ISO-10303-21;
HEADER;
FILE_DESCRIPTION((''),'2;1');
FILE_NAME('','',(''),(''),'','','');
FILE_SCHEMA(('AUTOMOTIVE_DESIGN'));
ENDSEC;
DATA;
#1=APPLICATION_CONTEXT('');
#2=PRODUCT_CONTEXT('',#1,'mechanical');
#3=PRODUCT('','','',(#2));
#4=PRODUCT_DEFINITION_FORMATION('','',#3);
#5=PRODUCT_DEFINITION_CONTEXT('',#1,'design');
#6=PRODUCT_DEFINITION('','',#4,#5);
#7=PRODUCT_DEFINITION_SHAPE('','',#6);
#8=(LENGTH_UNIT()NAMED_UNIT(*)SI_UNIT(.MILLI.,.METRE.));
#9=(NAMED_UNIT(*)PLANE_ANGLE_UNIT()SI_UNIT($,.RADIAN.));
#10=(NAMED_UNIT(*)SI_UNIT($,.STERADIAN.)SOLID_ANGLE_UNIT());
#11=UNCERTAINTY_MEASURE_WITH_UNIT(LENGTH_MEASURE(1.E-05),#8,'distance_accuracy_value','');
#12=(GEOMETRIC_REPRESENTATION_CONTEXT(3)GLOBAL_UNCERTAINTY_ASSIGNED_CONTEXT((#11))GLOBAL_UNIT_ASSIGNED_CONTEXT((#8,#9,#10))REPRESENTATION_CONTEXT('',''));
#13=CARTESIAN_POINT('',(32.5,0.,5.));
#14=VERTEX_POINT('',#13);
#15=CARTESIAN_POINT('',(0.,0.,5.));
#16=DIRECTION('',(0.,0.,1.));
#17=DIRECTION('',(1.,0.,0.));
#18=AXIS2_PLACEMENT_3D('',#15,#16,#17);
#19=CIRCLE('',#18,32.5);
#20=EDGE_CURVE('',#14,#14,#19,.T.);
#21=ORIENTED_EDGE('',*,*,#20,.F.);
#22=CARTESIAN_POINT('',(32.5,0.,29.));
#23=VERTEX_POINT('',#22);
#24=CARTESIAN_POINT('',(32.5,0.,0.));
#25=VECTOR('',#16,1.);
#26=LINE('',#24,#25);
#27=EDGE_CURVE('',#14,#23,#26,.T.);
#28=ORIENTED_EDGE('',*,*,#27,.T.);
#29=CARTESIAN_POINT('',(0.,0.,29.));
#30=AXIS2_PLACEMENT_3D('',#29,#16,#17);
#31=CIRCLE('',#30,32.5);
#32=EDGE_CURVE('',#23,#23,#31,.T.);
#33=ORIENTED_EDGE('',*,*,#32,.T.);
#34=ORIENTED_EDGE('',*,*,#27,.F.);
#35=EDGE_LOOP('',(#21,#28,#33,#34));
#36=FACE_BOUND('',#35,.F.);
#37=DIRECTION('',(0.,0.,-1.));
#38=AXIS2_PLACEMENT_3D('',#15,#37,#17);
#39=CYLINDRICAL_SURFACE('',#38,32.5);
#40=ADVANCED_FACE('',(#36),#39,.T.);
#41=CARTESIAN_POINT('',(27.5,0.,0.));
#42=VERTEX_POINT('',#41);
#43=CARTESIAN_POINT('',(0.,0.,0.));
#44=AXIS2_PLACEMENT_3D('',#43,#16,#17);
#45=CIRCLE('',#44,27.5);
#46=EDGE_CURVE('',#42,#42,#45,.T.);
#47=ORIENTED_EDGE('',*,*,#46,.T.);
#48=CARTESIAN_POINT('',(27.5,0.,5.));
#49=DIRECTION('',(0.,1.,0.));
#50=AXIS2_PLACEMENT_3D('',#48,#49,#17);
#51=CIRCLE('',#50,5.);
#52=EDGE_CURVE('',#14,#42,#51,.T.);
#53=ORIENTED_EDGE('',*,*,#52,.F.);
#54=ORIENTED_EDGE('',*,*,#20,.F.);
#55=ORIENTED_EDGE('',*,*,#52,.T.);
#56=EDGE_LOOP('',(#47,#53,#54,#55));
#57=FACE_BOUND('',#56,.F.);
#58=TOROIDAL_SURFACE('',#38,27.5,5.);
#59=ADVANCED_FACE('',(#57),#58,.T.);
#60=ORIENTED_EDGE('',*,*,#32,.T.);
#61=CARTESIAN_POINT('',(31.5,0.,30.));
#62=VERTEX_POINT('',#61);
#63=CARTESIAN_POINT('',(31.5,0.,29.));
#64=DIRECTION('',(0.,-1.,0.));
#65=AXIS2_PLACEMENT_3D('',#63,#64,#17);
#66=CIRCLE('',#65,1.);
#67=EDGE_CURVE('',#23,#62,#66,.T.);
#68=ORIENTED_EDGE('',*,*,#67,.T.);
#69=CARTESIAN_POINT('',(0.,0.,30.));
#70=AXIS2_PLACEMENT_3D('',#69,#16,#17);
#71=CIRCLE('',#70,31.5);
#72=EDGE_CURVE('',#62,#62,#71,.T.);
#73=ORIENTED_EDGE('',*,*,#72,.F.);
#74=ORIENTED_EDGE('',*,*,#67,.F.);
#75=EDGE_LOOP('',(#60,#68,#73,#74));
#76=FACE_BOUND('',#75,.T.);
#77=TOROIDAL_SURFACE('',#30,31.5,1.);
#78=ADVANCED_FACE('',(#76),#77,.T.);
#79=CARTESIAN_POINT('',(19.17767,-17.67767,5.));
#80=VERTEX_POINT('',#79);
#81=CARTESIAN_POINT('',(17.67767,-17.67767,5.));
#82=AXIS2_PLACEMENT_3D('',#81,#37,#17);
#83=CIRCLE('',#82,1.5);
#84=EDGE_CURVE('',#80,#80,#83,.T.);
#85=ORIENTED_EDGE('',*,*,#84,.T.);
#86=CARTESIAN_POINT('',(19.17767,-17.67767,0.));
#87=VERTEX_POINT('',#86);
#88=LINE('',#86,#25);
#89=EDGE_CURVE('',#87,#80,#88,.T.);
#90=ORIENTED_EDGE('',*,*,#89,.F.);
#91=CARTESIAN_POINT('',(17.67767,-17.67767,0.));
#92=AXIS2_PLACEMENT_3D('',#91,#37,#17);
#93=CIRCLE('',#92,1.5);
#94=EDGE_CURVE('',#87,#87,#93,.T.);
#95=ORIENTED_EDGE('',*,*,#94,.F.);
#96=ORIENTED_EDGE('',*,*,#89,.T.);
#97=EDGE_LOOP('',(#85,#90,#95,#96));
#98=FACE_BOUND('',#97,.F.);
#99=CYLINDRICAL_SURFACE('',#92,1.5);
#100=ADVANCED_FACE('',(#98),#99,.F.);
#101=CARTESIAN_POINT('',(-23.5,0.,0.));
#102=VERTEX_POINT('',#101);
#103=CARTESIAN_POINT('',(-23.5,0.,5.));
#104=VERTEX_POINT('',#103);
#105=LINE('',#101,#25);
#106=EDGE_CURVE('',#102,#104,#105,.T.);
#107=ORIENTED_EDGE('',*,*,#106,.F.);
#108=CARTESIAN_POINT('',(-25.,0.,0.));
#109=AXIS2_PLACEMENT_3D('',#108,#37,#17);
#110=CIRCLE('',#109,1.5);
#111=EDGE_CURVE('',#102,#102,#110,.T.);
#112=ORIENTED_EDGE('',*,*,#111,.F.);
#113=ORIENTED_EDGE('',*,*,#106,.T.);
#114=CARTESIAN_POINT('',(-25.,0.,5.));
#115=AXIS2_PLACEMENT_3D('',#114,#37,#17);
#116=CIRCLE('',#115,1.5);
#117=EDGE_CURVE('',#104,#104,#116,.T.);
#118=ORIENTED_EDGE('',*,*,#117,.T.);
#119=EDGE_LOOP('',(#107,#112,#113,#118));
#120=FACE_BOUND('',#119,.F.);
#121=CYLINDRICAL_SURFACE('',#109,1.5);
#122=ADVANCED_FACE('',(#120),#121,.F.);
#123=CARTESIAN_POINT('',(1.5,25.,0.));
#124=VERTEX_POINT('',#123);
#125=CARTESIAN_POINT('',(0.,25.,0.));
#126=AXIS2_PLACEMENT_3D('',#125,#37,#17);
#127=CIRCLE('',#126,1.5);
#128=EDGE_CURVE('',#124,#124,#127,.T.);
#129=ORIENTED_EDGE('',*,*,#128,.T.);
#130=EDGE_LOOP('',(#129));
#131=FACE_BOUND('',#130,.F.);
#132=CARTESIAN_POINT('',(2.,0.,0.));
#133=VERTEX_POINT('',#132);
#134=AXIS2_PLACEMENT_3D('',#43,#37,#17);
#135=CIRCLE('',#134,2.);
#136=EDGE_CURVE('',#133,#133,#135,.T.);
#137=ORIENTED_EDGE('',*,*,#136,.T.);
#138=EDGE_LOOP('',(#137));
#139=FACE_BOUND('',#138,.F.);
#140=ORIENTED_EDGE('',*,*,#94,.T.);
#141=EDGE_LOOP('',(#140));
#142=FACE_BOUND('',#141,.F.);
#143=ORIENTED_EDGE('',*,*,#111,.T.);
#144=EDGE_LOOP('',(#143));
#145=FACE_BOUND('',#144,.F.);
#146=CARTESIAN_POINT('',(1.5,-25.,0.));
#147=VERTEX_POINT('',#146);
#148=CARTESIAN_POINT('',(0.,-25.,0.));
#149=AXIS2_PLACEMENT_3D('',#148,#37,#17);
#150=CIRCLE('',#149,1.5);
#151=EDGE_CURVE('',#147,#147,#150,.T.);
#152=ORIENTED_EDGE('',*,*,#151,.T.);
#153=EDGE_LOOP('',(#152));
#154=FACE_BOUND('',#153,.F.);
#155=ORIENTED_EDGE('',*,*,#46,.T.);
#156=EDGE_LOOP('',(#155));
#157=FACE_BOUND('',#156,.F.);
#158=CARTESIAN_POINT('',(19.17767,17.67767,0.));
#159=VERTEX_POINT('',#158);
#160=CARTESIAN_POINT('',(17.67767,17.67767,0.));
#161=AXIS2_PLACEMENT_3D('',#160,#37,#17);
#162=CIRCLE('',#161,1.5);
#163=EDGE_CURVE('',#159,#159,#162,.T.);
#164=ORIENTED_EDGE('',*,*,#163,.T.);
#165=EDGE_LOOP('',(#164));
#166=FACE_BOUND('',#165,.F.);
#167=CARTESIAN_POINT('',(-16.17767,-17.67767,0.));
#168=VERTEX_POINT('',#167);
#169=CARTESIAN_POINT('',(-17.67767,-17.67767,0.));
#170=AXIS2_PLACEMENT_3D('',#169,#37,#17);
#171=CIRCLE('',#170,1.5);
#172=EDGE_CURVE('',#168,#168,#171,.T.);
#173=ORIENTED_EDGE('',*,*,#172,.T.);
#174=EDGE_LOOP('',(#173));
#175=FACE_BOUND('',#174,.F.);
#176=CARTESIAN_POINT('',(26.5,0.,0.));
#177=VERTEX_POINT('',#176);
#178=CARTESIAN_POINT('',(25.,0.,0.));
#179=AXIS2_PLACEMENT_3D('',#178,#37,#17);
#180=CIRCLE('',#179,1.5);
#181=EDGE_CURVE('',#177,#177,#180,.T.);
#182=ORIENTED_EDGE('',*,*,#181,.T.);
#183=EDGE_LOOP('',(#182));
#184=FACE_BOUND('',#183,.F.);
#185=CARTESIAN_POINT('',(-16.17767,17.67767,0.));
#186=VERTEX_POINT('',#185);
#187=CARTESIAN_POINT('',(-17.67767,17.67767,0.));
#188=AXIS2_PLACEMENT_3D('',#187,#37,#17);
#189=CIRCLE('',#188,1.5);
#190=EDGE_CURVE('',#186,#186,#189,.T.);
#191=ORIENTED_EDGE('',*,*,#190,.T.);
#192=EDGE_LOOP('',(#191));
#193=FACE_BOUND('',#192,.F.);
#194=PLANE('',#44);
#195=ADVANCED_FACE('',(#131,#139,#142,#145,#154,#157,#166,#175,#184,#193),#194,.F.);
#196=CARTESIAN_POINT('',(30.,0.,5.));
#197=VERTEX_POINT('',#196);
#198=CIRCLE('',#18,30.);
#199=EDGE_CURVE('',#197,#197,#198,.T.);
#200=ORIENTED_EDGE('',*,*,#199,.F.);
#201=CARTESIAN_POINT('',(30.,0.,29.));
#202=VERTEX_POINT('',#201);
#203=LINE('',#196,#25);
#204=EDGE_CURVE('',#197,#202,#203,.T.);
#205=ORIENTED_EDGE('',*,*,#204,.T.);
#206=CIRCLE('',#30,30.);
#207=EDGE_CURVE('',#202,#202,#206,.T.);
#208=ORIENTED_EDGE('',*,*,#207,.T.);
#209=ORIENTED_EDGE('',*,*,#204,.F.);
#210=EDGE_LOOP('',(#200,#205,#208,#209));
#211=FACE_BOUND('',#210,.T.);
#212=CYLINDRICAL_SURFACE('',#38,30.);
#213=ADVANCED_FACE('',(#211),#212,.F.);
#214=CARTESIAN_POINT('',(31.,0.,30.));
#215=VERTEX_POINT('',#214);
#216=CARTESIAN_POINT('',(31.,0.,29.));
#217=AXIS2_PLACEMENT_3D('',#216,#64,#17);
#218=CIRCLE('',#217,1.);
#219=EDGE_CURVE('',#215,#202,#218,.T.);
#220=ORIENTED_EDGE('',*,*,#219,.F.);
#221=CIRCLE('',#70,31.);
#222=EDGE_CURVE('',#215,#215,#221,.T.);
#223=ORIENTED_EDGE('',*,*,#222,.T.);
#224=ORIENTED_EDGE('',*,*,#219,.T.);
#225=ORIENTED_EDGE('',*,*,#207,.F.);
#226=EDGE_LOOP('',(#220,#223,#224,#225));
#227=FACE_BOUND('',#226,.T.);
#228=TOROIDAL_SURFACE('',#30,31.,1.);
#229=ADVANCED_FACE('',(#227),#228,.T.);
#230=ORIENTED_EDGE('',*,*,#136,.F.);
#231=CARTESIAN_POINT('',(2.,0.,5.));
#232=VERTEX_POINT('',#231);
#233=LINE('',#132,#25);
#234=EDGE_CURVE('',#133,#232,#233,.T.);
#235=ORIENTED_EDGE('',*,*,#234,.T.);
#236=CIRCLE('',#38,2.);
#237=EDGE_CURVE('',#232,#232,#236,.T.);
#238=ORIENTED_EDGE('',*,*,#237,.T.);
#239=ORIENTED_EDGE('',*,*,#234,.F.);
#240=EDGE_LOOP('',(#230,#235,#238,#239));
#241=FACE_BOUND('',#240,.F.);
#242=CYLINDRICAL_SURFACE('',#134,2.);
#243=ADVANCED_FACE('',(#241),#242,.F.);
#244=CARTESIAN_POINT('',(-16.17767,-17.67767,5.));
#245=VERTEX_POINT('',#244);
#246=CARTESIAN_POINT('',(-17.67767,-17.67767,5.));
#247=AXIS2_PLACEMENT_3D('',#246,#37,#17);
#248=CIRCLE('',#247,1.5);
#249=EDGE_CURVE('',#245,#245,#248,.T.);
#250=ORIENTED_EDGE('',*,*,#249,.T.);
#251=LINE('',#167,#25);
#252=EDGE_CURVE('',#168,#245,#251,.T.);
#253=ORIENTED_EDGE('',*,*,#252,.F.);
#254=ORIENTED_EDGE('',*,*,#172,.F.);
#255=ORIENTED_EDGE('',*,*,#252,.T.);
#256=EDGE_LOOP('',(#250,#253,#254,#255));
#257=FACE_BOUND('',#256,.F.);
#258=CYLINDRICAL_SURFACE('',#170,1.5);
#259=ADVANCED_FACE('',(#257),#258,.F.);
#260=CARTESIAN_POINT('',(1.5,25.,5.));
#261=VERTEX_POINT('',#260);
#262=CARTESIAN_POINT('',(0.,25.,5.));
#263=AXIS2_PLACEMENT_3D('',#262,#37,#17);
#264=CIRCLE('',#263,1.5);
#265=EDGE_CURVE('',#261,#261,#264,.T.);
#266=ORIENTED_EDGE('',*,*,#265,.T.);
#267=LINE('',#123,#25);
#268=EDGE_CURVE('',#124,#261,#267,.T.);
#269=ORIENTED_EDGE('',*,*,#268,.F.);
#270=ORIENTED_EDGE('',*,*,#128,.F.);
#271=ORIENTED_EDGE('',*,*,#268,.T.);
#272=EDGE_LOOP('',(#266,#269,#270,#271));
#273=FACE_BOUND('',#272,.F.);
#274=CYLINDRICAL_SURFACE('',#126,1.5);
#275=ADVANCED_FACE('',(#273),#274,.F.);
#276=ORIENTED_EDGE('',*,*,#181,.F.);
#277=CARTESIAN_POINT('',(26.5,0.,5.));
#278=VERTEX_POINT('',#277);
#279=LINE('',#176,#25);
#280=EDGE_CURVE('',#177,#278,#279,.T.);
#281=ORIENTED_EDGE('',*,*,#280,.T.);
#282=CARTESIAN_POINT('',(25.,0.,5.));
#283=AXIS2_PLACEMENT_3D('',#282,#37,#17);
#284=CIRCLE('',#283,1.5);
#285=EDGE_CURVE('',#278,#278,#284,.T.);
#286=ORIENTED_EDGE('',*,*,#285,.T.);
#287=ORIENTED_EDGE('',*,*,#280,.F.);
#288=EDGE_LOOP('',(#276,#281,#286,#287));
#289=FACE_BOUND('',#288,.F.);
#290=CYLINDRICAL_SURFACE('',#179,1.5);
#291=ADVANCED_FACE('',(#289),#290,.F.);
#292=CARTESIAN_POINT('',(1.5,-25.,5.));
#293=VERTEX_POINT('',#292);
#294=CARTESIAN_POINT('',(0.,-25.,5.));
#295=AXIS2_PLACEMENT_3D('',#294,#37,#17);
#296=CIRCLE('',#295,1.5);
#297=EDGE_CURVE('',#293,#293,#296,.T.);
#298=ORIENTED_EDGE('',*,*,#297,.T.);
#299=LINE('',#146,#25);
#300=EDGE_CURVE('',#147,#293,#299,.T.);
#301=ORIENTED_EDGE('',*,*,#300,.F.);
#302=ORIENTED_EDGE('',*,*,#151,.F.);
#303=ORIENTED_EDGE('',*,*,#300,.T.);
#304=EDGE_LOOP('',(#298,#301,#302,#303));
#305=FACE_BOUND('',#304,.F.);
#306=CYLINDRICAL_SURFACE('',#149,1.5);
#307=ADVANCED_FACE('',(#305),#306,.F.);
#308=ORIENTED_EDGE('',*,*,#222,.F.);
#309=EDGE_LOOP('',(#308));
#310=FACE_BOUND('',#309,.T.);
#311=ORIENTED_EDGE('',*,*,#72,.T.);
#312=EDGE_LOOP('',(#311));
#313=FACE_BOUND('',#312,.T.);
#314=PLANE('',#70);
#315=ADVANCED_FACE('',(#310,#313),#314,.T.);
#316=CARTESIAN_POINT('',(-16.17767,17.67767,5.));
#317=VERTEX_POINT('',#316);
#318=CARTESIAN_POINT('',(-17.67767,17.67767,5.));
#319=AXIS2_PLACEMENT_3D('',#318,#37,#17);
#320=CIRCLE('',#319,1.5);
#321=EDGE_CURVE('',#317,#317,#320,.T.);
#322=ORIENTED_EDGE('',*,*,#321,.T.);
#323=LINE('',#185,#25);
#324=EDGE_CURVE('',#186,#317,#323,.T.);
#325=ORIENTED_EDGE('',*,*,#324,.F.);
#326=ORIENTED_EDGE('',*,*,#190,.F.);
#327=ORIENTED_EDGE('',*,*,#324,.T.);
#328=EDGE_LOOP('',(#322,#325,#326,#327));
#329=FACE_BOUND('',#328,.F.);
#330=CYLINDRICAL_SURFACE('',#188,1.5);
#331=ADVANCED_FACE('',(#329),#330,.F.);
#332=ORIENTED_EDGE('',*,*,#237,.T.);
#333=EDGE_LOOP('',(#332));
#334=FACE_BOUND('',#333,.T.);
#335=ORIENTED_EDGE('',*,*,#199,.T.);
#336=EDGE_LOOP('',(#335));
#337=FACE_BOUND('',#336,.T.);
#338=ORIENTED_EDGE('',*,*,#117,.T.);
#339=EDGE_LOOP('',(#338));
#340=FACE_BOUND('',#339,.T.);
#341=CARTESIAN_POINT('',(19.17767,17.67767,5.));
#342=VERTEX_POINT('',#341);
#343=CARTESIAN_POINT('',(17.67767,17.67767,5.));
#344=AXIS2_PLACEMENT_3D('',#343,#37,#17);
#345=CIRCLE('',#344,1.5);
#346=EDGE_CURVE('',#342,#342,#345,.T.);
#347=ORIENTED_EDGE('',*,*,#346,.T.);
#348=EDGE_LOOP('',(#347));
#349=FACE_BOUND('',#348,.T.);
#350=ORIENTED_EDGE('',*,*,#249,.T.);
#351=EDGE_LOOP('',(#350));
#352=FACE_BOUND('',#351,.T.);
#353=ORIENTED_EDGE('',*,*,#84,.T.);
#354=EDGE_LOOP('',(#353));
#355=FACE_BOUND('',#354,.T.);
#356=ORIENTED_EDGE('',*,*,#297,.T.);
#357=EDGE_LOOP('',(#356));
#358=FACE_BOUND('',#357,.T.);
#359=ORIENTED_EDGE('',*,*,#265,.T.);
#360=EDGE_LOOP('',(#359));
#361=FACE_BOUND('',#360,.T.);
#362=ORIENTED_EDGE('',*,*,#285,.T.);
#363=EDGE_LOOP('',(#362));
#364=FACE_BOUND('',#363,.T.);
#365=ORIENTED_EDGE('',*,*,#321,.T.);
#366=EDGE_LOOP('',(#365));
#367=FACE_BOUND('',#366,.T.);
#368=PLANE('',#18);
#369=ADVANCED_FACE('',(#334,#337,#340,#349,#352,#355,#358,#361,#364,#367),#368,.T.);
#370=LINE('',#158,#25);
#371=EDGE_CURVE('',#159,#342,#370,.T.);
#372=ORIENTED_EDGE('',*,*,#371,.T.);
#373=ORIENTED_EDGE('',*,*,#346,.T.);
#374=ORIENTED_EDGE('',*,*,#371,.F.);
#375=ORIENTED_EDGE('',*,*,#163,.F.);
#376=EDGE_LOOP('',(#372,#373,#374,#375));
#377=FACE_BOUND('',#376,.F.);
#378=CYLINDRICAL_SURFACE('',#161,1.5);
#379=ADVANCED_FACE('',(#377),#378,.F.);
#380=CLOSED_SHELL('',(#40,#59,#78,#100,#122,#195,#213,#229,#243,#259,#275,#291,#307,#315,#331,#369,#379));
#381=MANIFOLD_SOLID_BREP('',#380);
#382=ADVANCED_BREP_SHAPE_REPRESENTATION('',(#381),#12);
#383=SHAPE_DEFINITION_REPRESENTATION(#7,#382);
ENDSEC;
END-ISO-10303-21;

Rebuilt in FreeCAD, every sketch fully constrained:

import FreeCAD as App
import Part
import Sketcher

V = App.Vector
Q = App.Units.Quantity


def edges_at(feature, points):
    """Names of the edges that pass closest to the given points."""
    edges = feature.Shape.Edges
    near = lambda p: min(range(len(edges)), key=lambda i: edges[i].distToShape(Part.Vertex(*p))[0])
    return sorted({f"Edge{near(p) + 1}" for p in points})

doc = App.newDocument("Part")
body = doc.addObject("PartDesign::Body", "Body")

# Sketch on XY plane
sketch1 = body.newObject("Sketcher::SketchObject", "Sketch")
sketch1.AttachmentSupport = (doc.getObject("XY_Plane"), [""])
sketch1.MapMode = "FlatFace"
sketch1.addGeometry(Part.Circle(V(0, 0, 0), V(0, 0, 1), 32), False)
sketch1.addConstraint(Sketcher.Constraint("Coincident", 0, 3, -1, 1))
sketch1.addConstraint(Sketcher.Constraint("Diameter", 0, Q("65 mm")))
pad1 = body.newObject("PartDesign::Pad", "Pad")
pad1.Profile = sketch1
pad1.Length = 5

# Sketch on XY plane
sketch2 = body.newObject("Sketcher::SketchObject", "Sketch001")
sketch2.AttachmentSupport = (doc.getObject("XY_Plane"), [""])
sketch2.MapMode = "FlatFace"
sketch2.AttachmentOffset = App.Placement(V(0, 0, 5), App.Rotation())
sketch2.addGeometry(Part.Circle(V(0, 0, 0), V(0, 0, 1), 32), False)
sketch2.addGeometry(Part.Circle(V(0, 0, 0), V(0, 0, 1), 30), False)
sketch2.addConstraint(Sketcher.Constraint("Coincident", 0, 3, -1, 1))
sketch2.addConstraint(Sketcher.Constraint("Coincident", 1, 3, -1, 1))
sketch2.addConstraint(Sketcher.Constraint("Diameter", 0, Q("65 mm")))
sketch2.addConstraint(Sketcher.Constraint("Diameter", 1, Q("60 mm")))
pad2 = body.newObject("PartDesign::Pad", "Pad001")
pad2.Profile = sketch2
pad2.Length = 25

# Sketch on XY plane
sketch3 = body.newObject("Sketcher::SketchObject", "Sketch002")
sketch3.AttachmentSupport = (doc.getObject("XY_Plane"), [""])
sketch3.MapMode = "FlatFace"
sketch3.addGeometry(Part.Circle(V(0, 0, 0), V(0, 0, 1), 2), False)
sketch3.addConstraint(Sketcher.Constraint("Coincident", 0, 3, -1, 1))
sketch3.addConstraint(Sketcher.Constraint("Diameter", 0, Q("4 mm")))
pocket1 = body.newObject("PartDesign::Pocket", "Pocket")
pocket1.Profile = sketch3
pocket1.Length = 25
pocket1.Reversed = True

# Sketch on XY plane
sketch4 = body.newObject("Sketcher::SketchObject", "Sketch003")
sketch4.AttachmentSupport = (doc.getObject("XY_Plane"), [""])
sketch4.MapMode = "FlatFace"
sketch4.addGeometry(Part.Circle(V(0, -25, 0), V(0, 0, 1), 1.5), False)
sketch4.addGeometry(Part.Circle(V(17.7, -17.7, 0), V(0, 0, 1), 1.5), False)
sketch4.addGeometry(Part.Circle(V(25, 0, 0), V(0, 0, 1), 1.5), False)
sketch4.addGeometry(Part.Circle(V(17.7, 17.7, 0), V(0, 0, 1), 1.5), False)
sketch4.addGeometry(Part.Circle(V(0, 25, 0), V(0, 0, 1), 1.5), False)
sketch4.addGeometry(Part.Circle(V(-17.7, 17.7, 0), V(0, 0, 1), 1.5), False)
sketch4.addGeometry(Part.Circle(V(-17.7, -17.7, 0), V(0, 0, 1), 1.5), False)
sketch4.addGeometry(Part.Circle(V(-25, 0, 0), V(0, 0, 1), 1.5), False)
sketch4.addConstraint(Sketcher.Constraint("Equal", 0, 1))
sketch4.addConstraint(Sketcher.Constraint("Equal", 1, 2))
sketch4.addConstraint(Sketcher.Constraint("Equal", 2, 3))
sketch4.addConstraint(Sketcher.Constraint("Equal", 3, 4))
sketch4.addConstraint(Sketcher.Constraint("Equal", 4, 5))
sketch4.addConstraint(Sketcher.Constraint("Equal", 5, 6))
sketch4.addConstraint(Sketcher.Constraint("Equal", 6, 7))
sketch4.addConstraint(Sketcher.Constraint("Symmetric", 0, 3, 4, 3, -1, 1))
sketch4.addConstraint(Sketcher.Constraint("Symmetric", 1, 3, 5, 3, -1, 1))
sketch4.addConstraint(Sketcher.Constraint("Symmetric", 3, 3, 6, 3, -1, 1))
sketch4.addConstraint(Sketcher.Constraint("Symmetric", 2, 3, 7, 3, -1, 1))
sketch4.addConstraint(Sketcher.Constraint("Symmetric", 3, 3, 5, 3, -2))
sketch4.addConstraint(Sketcher.Constraint("PointOnObject", 0, 3, -2))
sketch4.addConstraint(Sketcher.Constraint("PointOnObject", 2, 3, -1))
sketch4.addConstraint(Sketcher.Constraint("Diameter", 0, Q("3 mm")))
sketch4.addConstraint(Sketcher.Constraint("DistanceY", 0, 3, -1, 1, Q("25 mm")))
sketch4.addConstraint(Sketcher.Constraint("DistanceX", -1, 1, 2, 3, Q("25 mm")))
sketch4.addConstraint(Sketcher.Constraint("DistanceX", -1, 1, 1, 3, Q("17.67767 mm")))
sketch4.addConstraint(Sketcher.Constraint("DistanceY", 1, 3, -1, 1, Q("17.67767 mm")))
pocket2 = body.newObject("PartDesign::Pocket", "Pocket001")
pocket2.Profile = sketch4
pocket2.Length = 25
pocket2.Reversed = True
doc.recompute()

fillet = body.newObject("PartDesign::Fillet", "Fillet")
fillet.Base = (pocket2, edges_at(pocket2, [(-32.5, 0, 0)]))
fillet.Radius = 5
doc.recompute()

fillet2 = body.newObject("PartDesign::Fillet", "Fillet001")
fillet2.Base = (fillet, edges_at(fillet, [(-30, 0, 30), (-32.5, 0, 30)]))
fillet2.Radius = 1

doc.recompute()
